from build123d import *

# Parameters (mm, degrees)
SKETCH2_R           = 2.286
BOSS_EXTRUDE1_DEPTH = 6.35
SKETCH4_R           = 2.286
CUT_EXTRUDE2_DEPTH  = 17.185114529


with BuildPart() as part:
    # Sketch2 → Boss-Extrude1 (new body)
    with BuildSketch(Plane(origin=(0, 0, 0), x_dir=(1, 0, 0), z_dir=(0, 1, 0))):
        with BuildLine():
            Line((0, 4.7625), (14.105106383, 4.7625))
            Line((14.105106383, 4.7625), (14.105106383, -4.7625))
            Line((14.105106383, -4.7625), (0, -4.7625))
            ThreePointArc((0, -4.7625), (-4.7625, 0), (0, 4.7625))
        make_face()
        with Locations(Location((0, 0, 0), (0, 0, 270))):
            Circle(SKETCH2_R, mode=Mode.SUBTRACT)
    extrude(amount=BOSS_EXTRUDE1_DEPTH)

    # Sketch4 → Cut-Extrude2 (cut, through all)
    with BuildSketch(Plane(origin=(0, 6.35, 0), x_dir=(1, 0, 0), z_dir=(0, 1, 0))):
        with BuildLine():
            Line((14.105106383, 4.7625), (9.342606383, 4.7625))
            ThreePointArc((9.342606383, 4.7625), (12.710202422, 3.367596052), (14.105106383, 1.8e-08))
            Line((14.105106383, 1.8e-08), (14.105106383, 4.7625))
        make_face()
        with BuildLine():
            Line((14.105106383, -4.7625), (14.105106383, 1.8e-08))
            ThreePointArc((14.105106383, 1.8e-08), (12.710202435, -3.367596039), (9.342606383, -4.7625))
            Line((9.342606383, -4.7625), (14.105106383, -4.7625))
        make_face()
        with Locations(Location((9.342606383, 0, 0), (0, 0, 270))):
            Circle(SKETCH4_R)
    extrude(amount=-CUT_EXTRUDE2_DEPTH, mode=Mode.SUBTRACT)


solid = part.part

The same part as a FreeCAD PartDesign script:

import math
import FreeCAD as App
import Part
import Sketcher
Q = App.Units.Quantity

doc = App.newDocument("Part")
body = doc.addObject("PartDesign::Body", "Body")

# Sketch on XZ plane
sketch1 = body.newObject("Sketcher::SketchObject", "Sketch")
sketch1.AttachmentSupport = (doc.getObject("XZ_Plane"), [""])
sketch1.MapMode = "FlatFace"
sketch1.addGeometry(Part.LineSegment(App.Vector(14.105106, -4.7625, 0), App.Vector(0, -4.7625, 0)), False)
sketch1.addGeometry(Part.ArcOfCircle(Part.Circle(App.Vector(0, 0, 0), App.Vector(0, 0, 1), 4.7625), math.radians(90), math.radians(270)), False)
sketch1.addGeometry(Part.LineSegment(App.Vector(0, 4.7625, 0), App.Vector(14.105106, 4.7625, 0)), False)
sketch1.addGeometry(Part.LineSegment(App.Vector(14.105106, 4.7625, 0), App.Vector(14.105106, -4.7625, 0)), False)
sketch1.addGeometry(Part.Circle(App.Vector(0, 0, 0), App.Vector(0, 0, 1), 2.286), False)
sketch1.addConstraint(Sketcher.Constraint("Tangent", 0, 2, 1, 2))
sketch1.addConstraint(Sketcher.Constraint("Tangent", 1, 1, 2, 1))
sketch1.addConstraint(Sketcher.Constraint("Coincident", 2, 2, 3, 1))
sketch1.addConstraint(Sketcher.Constraint("Coincident", 3, 2, 0, 1))
sketch1.addConstraint(Sketcher.Constraint("Horizontal", 0))
sketch1.addConstraint(Sketcher.Constraint("Horizontal", 2))
sketch1.addConstraint(Sketcher.Constraint("Vertical", 3))
sketch1.addConstraint(Sketcher.Constraint("Coincident", 1, 3, -1, 1))
sketch1.addConstraint(Sketcher.Constraint("Coincident", 4, 3, -1, 1))
sketch1.addConstraint(Sketcher.Constraint("Diameter", 4, Q("0.18 in")))
sketch1.addConstraint(Sketcher.Constraint("Radius", 1, Q("0.1875 in")))
sketch1.addConstraint(Sketcher.Constraint("DistanceX", 0, 2, 0, 1, Q("14.105106 mm")))
pad1 = body.newObject("PartDesign::Pad", "Pad")
pad1.Profile = sketch1
pad1.Length = Q("0.25 in")
pad1.Reversed = True

# Sketch on XZ plane
sketch2 = body.newObject("Sketcher::SketchObject", "Sketch001")
sketch2.AttachmentSupport = (doc.getObject("XZ_Plane"), [""])
sketch2.MapMode = "FlatFace"
sketch2.AttachmentOffset = App.Placement(App.Vector(0, 0, -0.25 * 25.4), App.Rotation())
sketch2.addGeometry(Part.LineSegment(App.Vector(14.105106, -4.7625, 0), App.Vector(9.342606, -4.7625, 0)), False)
sketch2.addGeometry(Part.ArcOfCircle(Part.Circle(App.Vector(9.342606, 0, 0), App.Vector(0, 0, 1), 4.7625), math.radians(-90), math.radians(0)), False)
sketch2.addGeometry(Part.LineSegment(App.Vector(14.105106, 0, 0), App.Vector(14.105106, -4.7625, 0)), False)
sketch2.addGeometry(Part.LineSegment(App.Vector(14.105106, 4.7625, 0), App.Vector(14.105106, 0, 0)), False)
sketch2.addGeometry(Part.ArcOfCircle(Part.Circle(App.Vector(9.342606, 0, 0), App.Vector(0, 0, 1), 4.7625), math.radians(0), math.radians(90)), False)
sketch2.addGeometry(Part.LineSegment(App.Vector(9.342606, 4.7625, 0), App.Vector(14.105106, 4.7625, 0)), False)
sketch2.addGeometry(Part.Circle(App.Vector(9.342606, 0, 0), App.Vector(0, 0, 1), 2.286), False)
sketch2.addConstraint(Sketcher.Constraint("Tangent", 0, 2, 1, 1))
sketch2.addConstraint(Sketcher.Constraint("Tangent", 1, 2, 2, 1))
sketch2.addConstraint(Sketcher.Constraint("Coincident", 2, 2, 0, 1))
sketch2.addConstraint(Sketcher.Constraint("Tangent", 3, 2, 4, 1))
sketch2.addConstraint(Sketcher.Constraint("Tangent", 4, 2, 5, 1))
sketch2.addConstraint(Sketcher.Constraint("Coincident", 5, 2, 3, 1))
sketch2.addConstraint(Sketcher.Constraint("Horizontal", 0))
sketch2.addConstraint(Sketcher.Constraint("Vertical", 2))
sketch2.addConstraint(Sketcher.Constraint("Vertical", 3))
sketch2.addConstraint(Sketcher.Constraint("Horizontal", 5))
sketch2.addConstraint(Sketcher.Constraint("Coincident", 4, 3, 1, 3))
sketch2.addConstraint(Sketcher.Constraint("Coincident", 6, 3, 1, 3))
sketch2.addConstraint(Sketcher.Constraint("Equal", 1, 4))
sketch2.addConstraint(Sketcher.Constraint("PointOnObject", 1, 3, -1))
sketch2.addConstraint(Sketcher.Constraint("Diameter", 6, Q("0.18 in")))
sketch2.addConstraint(Sketcher.Constraint("Radius", 1, Q("0.1875 in")))
sketch2.addConstraint(Sketcher.Constraint("DistanceX", -1, 1, 1, 3, Q("9.342606 mm")))
pocket1 = body.newObject("PartDesign::Pocket", "Pocket")
pocket1.Profile = sketch2
pocket1.Type = "ThroughAll"
pocket1.Reversed = True

doc.recompute()
